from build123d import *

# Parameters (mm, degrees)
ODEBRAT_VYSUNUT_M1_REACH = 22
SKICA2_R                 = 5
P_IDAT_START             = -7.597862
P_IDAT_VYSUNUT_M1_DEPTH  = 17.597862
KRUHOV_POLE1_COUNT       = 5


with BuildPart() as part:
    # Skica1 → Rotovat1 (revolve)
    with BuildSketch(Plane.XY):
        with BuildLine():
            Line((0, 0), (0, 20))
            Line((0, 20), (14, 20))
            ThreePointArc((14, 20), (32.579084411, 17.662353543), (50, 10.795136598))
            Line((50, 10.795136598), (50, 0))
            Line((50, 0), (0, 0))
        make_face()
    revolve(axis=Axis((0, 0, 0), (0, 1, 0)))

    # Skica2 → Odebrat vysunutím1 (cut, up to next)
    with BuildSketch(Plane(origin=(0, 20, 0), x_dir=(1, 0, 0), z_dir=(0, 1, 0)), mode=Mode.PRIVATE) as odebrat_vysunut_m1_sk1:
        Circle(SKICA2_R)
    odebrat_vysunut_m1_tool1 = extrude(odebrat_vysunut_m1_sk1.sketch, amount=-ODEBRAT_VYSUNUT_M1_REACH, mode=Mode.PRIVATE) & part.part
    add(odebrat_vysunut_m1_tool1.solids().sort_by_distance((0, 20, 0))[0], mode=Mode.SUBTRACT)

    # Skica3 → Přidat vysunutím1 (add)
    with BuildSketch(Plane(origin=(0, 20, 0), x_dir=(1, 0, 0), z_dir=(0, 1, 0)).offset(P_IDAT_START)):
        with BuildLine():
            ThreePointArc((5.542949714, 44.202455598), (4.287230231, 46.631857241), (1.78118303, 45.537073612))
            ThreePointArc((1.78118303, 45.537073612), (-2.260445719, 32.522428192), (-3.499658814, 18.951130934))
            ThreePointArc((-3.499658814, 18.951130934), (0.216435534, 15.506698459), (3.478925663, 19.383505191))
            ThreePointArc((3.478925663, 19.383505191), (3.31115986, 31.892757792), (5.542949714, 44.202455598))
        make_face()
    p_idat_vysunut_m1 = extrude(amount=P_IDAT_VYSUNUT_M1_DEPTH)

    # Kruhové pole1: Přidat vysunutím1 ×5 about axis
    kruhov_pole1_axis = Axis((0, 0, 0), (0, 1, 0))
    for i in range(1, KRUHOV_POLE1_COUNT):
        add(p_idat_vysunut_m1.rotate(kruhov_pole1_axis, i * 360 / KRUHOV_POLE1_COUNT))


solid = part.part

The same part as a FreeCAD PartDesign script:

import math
import FreeCAD as App
import Part
import Sketcher

V = App.Vector

doc = App.newDocument("Part")
body = doc.addObject("PartDesign::Body", "Body")

sketch1 = body.newObject("Sketcher::SketchObject", "Sketch")
sketch1.AttachmentSupport = (doc.getObject("XY_Plane"), [""])
sketch1.MapMode = "FlatFace"
sketch1.addGeometry(Part.LineSegment(V(0, 20, 0), V(0, 0, 0)), False)
sketch1.addGeometry(Part.LineSegment(V(0, 0, 0), V(50, 0, 0)), False)
sketch1.addGeometry(Part.LineSegment(V(50, 0, 0), V(50, 11, 0)), False)
sketch1.addGeometry(Part.ArcOfCircle(Part.Circle(V(14, -55, 0), V(0, 0, 1), 75), math.radians(61), math.radians(90)), False)
sketch1.addGeometry(Part.LineSegment(V(14, 20, 0), V(0, 20, 0)), False)
sketch1.addConstraint(Sketcher.Constraint("Coincident", 0, 2, 1, 1))
sketch1.addConstraint(Sketcher.Constraint("Coincident", 1, 2, 2, 1))
sketch1.addConstraint(Sketcher.Constraint("Coincident", 2, 2, 3, 1))
sketch1.addConstraint(Sketcher.Constraint("Tangent", 3, 2, 4, 1))
sketch1.addConstraint(Sketcher.Constraint("Coincident", 4, 2, 0, 1))
sketch1.addConstraint(Sketcher.Constraint("Vertical", 0))
sketch1.addConstraint(Sketcher.Constraint("Horizontal", 1))
sketch1.addConstraint(Sketcher.Constraint("Vertical", 2))
sketch1.addConstraint(Sketcher.Constraint("Horizontal", 4))
sketch1.addConstraint(Sketcher.Constraint("Coincident", 0, 2, -1, 1))
sketch1.addConstraint(Sketcher.Constraint("Radius", 3, 75.0))
sketch1.addConstraint(Sketcher.Constraint("DistanceX", 1, 1, 1, 2, 50.0))
sketch1.addConstraint(Sketcher.Constraint("DistanceX", 4, 2, 4, 1, 14.0))
sketch1.addConstraint(Sketcher.Constraint("DistanceY", 0, 2, 0, 1, 20.0))
revolution = body.newObject("PartDesign::Revolution", "Revolution")
revolution.Profile = sketch1
revolution.ReferenceAxis = (sketch1, ["V_Axis"])
revolution.Angle = 360

sketch2 = body.newObject("Sketcher::SketchObject", "Sketch001")
sketch2.AttachmentSupport = (doc.getObject("XZ_Plane"), [""])
sketch2.MapMode = "FlatFace"
sketch2.AttachmentOffset = App.Placement(V(0, 0, -20), App.Rotation())
sketch2.addGeometry(Part.Circle(V(0, 0, 0), V(0, 0, 1), 5), False)
sketch2.addConstraint(Sketcher.Constraint("Coincident", 0, 3, -1, 1))
sketch2.addConstraint(Sketcher.Constraint("Diameter", 0, 10.0))
pocket1 = body.newObject("PartDesign::Pocket", "Pocket")
pocket1.Profile = sketch2
pocket1.Type = "UpToFirst"
pocket1.Reversed = True

sketch3 = body.newObject("Sketcher::SketchObject", "Sketch002")
sketch3.AttachmentSupport = (doc.getObject("XZ_Plane"), [""])
sketch3.MapMode = "FlatFace"
sketch3.AttachmentOffset = App.Placement(V(0, 0, -12.402138), App.Rotation())
sketch3.addGeometry(Part.ArcOfCircle(Part.Circle(V(3.6, -44.7, 0), V(0, 0, 1), 2), math.radians(-157), math.radians(16)), False)
sketch3.addGeometry(Part.ArcOfCircle(Part.Circle(V(61.5, -19.9, 0), V(0, 0, 1), 65), math.radians(179), math.radians(203)), False)
sketch3.addGeometry(Part.ArcOfCircle(Part.Circle(V(0, -19, 0), V(0, 0, 1), 3.5), math.radians(-6), math.radians(179)), False)
sketch3.addGeometry(Part.ArcOfCircle(Part.Circle(V(68.1, -26.5, 0), V(0, 0, 1), 65), math.radians(174), math.radians(196)), False)
sketch3.addConstraint(Sketcher.Constraint("Tangent", 0, 1, 1, 2))
sketch3.addConstraint(Sketcher.Constraint("Tangent", 1, 1, 2, 2))
sketch3.addConstraint(Sketcher.Constraint("Tangent", 2, 1, 3, 1))
sketch3.addConstraint(Sketcher.Constraint("Tangent", 3, 2, 0, 2))
sketch3.addConstraint(Sketcher.Constraint("Equal", 1, 3))
sketch3.addConstraint(Sketcher.Constraint("PointOnObject", 2, 3, -2))
sketch3.addConstraint(Sketcher.Constraint("Radius", 0, 2.0))
sketch3.addConstraint(Sketcher.Constraint("Radius", 1, 65.0))
sketch3.addConstraint(Sketcher.Constraint("Radius", 2, 3.5))
sketch3.addConstraint(Sketcher.Constraint("DistanceY", 2, 3, -1, 1, 19.0))
sketch3.addConstraint(Sketcher.Constraint("DistanceX", -1, 1, 0, 3, 3.618501))
sketch3.addConstraint(Sketcher.Constraint("DistanceY", 1, 3, -1, 1, 19.858699))
pad1 = body.newObject("PartDesign::Pad", "Pad")
pad1.Profile = sketch3
pad1.Length = 17.597862
pad1.Reversed = True
doc.recompute()

polarpattern = body.newObject("PartDesign::PolarPattern", "PolarPattern")
polarpattern.Originals = [pad1]
polarpattern.Axis = (doc.getObject("Y_Axis"), [""])
polarpattern.Angle = 360
polarpattern.Occurrences = 5
body.Tip = polarpattern

doc.recompute()
